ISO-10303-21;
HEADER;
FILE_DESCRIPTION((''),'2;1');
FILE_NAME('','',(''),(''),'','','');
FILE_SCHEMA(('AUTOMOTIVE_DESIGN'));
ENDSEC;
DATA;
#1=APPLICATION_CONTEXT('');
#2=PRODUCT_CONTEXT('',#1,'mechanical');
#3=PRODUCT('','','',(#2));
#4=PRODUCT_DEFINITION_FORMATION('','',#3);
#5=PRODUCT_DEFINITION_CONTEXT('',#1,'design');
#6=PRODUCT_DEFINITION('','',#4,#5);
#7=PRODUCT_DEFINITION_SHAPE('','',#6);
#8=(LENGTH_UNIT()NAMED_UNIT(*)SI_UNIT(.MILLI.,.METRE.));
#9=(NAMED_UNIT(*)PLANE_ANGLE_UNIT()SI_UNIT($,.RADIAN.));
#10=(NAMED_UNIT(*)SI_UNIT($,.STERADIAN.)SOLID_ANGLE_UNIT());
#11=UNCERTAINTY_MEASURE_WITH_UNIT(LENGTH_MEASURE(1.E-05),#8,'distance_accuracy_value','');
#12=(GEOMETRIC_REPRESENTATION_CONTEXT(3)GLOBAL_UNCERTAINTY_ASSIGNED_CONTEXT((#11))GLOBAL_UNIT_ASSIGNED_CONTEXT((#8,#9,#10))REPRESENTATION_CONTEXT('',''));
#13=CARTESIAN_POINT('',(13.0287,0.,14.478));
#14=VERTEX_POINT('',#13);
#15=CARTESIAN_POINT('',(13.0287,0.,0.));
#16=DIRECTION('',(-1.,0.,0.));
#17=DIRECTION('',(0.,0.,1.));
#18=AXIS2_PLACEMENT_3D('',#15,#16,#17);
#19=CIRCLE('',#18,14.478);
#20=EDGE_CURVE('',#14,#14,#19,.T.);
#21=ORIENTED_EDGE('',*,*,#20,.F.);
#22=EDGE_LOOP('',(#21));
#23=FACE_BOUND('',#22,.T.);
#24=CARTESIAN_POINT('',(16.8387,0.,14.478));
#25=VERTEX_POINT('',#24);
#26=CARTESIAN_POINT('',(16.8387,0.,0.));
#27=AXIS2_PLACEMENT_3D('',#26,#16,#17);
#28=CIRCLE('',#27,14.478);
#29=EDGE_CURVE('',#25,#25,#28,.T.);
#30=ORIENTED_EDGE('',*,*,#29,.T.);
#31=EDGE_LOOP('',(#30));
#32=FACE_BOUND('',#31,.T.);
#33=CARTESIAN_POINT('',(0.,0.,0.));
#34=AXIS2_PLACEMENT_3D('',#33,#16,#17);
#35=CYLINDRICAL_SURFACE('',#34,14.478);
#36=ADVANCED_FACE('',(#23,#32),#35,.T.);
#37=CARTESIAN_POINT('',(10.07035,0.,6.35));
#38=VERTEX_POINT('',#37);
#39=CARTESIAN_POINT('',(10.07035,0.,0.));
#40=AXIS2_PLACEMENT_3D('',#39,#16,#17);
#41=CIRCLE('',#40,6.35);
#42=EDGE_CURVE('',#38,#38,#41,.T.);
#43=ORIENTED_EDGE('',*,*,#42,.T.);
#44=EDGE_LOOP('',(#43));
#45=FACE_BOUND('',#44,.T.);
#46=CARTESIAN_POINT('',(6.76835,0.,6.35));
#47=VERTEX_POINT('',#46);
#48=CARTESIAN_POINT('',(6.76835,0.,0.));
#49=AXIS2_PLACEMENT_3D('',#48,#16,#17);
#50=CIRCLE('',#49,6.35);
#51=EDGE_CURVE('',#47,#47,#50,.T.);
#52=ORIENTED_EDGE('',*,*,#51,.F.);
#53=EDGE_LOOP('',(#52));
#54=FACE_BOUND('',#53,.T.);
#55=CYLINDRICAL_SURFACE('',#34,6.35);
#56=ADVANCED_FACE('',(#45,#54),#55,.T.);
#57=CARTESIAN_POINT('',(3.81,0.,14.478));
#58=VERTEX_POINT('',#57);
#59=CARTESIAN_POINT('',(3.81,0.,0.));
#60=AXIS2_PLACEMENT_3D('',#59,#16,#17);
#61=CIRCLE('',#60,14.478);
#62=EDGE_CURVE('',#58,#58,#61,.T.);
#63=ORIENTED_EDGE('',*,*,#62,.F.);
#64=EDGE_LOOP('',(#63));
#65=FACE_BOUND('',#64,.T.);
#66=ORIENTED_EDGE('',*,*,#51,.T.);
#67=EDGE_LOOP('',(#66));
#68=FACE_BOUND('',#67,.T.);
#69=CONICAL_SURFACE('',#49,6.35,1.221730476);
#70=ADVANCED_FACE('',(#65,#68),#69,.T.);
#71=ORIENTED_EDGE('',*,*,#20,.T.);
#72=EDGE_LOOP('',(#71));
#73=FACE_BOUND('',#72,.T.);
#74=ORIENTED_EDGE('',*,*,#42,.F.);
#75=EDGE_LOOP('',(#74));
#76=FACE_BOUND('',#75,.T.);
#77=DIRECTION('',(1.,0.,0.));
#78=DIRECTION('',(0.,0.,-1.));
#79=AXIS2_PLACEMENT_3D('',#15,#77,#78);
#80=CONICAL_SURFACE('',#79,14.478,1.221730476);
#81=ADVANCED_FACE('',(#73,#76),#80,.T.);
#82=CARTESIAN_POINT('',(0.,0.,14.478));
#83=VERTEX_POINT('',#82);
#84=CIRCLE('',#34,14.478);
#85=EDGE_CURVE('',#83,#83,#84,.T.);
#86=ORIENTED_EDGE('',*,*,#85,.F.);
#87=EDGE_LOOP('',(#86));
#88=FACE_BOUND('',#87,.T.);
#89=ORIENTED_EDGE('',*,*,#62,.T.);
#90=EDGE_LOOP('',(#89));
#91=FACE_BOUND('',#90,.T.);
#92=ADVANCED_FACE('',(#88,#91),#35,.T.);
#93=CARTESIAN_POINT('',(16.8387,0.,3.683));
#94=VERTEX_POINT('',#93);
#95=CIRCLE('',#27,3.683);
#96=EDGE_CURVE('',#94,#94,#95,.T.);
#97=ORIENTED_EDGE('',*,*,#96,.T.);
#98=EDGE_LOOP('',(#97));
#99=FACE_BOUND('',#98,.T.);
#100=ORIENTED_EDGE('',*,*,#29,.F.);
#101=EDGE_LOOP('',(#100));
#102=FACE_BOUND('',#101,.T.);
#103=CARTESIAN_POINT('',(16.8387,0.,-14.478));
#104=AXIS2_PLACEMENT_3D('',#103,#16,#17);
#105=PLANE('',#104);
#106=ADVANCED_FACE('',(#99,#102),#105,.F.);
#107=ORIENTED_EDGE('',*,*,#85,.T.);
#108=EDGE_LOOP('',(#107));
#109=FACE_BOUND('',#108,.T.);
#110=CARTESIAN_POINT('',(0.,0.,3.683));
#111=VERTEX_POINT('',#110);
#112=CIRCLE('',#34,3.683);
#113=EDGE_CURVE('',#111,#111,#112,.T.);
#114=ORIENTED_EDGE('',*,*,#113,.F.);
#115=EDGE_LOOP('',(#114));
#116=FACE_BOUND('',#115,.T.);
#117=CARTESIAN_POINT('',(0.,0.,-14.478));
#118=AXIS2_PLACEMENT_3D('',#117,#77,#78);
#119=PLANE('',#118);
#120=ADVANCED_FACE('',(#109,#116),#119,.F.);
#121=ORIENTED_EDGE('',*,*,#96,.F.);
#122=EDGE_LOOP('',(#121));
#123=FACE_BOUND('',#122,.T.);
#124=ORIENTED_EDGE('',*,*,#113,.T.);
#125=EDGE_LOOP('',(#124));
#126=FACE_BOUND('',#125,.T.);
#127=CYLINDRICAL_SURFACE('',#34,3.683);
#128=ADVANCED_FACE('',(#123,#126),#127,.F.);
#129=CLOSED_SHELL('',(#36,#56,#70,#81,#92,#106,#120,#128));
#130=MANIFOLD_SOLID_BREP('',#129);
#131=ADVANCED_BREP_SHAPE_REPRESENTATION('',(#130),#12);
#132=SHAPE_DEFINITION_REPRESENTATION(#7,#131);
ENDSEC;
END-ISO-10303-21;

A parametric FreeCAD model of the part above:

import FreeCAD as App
import Part
import Sketcher

V = App.Vector
Q = App.Units.Quantity

doc = App.newDocument("Part")
body = doc.addObject("PartDesign::Body", "Body")

sketch1 = body.newObject("Sketcher::SketchObject", "Sketch")
sketch1.AttachmentSupport = (doc.getObject("XZ_Plane"), [""])
sketch1.MapMode = "FlatFace"
sketch1.addGeometry(Part.LineSegment(V(3.81, -14.478, 0), V(0, -14.478, 0)), False)
sketch1.addGeometry(Part.LineSegment(V(0, -14.478, 0), V(0, -3.683, 0)), False)
sketch1.addGeometry(Part.LineSegment(V(0, -3.683, 0), V(16.8387, -3.683, 0)), False)
sketch1.addGeometry(Part.LineSegment(V(16.8387, -3.683, 0), V(16.8387, -14.478, 0)), False)
sketch1.addGeometry(Part.LineSegment(V(16.8387, -14.478, 0), V(13.0287, -14.478, 0)), False)
sketch1.addGeometry(Part.LineSegment(V(13.0287, -14.478, 0), V(10.07035, -6.35, 0)), False)
sketch1.addGeometry(Part.LineSegment(V(10.07035, -6.35, 0), V(6.76835, -6.35, 0)), False)
sketch1.addGeometry(Part.LineSegment(V(6.76835, -6.35, 0), V(3.81, -14.478, 0)), False)
sketch1.addConstraint(Sketcher.Constraint("Coincident", 0, 2, 1, 1))
sketch1.addConstraint(Sketcher.Constraint("Coincident", 1, 2, 2, 1))
sketch1.addConstraint(Sketcher.Constraint("Coincident", 2, 2, 3, 1))
sketch1.addConstraint(Sketcher.Constraint("Coincident", 3, 2, 4, 1))
sketch1.addConstraint(Sketcher.Constraint("Coincident", 4, 2, 5, 1))
sketch1.addConstraint(Sketcher.Constraint("Coincident", 5, 2, 6, 1))
sketch1.addConstraint(Sketcher.Constraint("Coincident", 6, 2, 7, 1))
sketch1.addConstraint(Sketcher.Constraint("Coincident", 7, 2, 0, 1))
sketch1.addConstraint(Sketcher.Constraint("Horizontal", 0))
sketch1.addConstraint(Sketcher.Constraint("Vertical", 1))
sketch1.addConstraint(Sketcher.Constraint("Horizontal", 2))
sketch1.addConstraint(Sketcher.Constraint("Vertical", 3))
sketch1.addConstraint(Sketcher.Constraint("Horizontal", 4))
sketch1.addConstraint(Sketcher.Constraint("Horizontal", 6))
sketch1.addConstraint(Sketcher.Constraint("PointOnObject", 0, 2, -2))
sketch1.addConstraint(Sketcher.Constraint("Horizontal", 0, 2, 3, 2))
sketch1.addConstraint(Sketcher.Constraint("Equal", 0, 4))
sketch1.addConstraint(Sketcher.Constraint("Equal", 5, 7))
sketch1.addConstraint(Sketcher.Constraint("Angle", 5, Q("110 deg")))
sketch1.addConstraint(Sketcher.Constraint("DistanceX", 0, 2, 0, 1, Q("0.15 in")))
sketch1.addConstraint(Sketcher.Constraint("DistanceX", 6, 2, 6, 1, Q("0.13 in")))
sketch1.addConstraint(Sketcher.Constraint("DistanceY", 1, 1, 1, 2, Q("0.425 in")))
sketch1.addConstraint(Sketcher.Constraint("DistanceY", 0, 2, -1, 1, Q("0.57 in")))
sketch1.addConstraint(Sketcher.Constraint("DistanceY", 5, 2, -1, 1, Q("0.25 in")))
revolution = body.newObject("PartDesign::Revolution", "Revolution")
revolution.Profile = sketch1
revolution.ReferenceAxis = (sketch1, ["H_Axis"])
revolution.Angle = 360

doc.recompute()
